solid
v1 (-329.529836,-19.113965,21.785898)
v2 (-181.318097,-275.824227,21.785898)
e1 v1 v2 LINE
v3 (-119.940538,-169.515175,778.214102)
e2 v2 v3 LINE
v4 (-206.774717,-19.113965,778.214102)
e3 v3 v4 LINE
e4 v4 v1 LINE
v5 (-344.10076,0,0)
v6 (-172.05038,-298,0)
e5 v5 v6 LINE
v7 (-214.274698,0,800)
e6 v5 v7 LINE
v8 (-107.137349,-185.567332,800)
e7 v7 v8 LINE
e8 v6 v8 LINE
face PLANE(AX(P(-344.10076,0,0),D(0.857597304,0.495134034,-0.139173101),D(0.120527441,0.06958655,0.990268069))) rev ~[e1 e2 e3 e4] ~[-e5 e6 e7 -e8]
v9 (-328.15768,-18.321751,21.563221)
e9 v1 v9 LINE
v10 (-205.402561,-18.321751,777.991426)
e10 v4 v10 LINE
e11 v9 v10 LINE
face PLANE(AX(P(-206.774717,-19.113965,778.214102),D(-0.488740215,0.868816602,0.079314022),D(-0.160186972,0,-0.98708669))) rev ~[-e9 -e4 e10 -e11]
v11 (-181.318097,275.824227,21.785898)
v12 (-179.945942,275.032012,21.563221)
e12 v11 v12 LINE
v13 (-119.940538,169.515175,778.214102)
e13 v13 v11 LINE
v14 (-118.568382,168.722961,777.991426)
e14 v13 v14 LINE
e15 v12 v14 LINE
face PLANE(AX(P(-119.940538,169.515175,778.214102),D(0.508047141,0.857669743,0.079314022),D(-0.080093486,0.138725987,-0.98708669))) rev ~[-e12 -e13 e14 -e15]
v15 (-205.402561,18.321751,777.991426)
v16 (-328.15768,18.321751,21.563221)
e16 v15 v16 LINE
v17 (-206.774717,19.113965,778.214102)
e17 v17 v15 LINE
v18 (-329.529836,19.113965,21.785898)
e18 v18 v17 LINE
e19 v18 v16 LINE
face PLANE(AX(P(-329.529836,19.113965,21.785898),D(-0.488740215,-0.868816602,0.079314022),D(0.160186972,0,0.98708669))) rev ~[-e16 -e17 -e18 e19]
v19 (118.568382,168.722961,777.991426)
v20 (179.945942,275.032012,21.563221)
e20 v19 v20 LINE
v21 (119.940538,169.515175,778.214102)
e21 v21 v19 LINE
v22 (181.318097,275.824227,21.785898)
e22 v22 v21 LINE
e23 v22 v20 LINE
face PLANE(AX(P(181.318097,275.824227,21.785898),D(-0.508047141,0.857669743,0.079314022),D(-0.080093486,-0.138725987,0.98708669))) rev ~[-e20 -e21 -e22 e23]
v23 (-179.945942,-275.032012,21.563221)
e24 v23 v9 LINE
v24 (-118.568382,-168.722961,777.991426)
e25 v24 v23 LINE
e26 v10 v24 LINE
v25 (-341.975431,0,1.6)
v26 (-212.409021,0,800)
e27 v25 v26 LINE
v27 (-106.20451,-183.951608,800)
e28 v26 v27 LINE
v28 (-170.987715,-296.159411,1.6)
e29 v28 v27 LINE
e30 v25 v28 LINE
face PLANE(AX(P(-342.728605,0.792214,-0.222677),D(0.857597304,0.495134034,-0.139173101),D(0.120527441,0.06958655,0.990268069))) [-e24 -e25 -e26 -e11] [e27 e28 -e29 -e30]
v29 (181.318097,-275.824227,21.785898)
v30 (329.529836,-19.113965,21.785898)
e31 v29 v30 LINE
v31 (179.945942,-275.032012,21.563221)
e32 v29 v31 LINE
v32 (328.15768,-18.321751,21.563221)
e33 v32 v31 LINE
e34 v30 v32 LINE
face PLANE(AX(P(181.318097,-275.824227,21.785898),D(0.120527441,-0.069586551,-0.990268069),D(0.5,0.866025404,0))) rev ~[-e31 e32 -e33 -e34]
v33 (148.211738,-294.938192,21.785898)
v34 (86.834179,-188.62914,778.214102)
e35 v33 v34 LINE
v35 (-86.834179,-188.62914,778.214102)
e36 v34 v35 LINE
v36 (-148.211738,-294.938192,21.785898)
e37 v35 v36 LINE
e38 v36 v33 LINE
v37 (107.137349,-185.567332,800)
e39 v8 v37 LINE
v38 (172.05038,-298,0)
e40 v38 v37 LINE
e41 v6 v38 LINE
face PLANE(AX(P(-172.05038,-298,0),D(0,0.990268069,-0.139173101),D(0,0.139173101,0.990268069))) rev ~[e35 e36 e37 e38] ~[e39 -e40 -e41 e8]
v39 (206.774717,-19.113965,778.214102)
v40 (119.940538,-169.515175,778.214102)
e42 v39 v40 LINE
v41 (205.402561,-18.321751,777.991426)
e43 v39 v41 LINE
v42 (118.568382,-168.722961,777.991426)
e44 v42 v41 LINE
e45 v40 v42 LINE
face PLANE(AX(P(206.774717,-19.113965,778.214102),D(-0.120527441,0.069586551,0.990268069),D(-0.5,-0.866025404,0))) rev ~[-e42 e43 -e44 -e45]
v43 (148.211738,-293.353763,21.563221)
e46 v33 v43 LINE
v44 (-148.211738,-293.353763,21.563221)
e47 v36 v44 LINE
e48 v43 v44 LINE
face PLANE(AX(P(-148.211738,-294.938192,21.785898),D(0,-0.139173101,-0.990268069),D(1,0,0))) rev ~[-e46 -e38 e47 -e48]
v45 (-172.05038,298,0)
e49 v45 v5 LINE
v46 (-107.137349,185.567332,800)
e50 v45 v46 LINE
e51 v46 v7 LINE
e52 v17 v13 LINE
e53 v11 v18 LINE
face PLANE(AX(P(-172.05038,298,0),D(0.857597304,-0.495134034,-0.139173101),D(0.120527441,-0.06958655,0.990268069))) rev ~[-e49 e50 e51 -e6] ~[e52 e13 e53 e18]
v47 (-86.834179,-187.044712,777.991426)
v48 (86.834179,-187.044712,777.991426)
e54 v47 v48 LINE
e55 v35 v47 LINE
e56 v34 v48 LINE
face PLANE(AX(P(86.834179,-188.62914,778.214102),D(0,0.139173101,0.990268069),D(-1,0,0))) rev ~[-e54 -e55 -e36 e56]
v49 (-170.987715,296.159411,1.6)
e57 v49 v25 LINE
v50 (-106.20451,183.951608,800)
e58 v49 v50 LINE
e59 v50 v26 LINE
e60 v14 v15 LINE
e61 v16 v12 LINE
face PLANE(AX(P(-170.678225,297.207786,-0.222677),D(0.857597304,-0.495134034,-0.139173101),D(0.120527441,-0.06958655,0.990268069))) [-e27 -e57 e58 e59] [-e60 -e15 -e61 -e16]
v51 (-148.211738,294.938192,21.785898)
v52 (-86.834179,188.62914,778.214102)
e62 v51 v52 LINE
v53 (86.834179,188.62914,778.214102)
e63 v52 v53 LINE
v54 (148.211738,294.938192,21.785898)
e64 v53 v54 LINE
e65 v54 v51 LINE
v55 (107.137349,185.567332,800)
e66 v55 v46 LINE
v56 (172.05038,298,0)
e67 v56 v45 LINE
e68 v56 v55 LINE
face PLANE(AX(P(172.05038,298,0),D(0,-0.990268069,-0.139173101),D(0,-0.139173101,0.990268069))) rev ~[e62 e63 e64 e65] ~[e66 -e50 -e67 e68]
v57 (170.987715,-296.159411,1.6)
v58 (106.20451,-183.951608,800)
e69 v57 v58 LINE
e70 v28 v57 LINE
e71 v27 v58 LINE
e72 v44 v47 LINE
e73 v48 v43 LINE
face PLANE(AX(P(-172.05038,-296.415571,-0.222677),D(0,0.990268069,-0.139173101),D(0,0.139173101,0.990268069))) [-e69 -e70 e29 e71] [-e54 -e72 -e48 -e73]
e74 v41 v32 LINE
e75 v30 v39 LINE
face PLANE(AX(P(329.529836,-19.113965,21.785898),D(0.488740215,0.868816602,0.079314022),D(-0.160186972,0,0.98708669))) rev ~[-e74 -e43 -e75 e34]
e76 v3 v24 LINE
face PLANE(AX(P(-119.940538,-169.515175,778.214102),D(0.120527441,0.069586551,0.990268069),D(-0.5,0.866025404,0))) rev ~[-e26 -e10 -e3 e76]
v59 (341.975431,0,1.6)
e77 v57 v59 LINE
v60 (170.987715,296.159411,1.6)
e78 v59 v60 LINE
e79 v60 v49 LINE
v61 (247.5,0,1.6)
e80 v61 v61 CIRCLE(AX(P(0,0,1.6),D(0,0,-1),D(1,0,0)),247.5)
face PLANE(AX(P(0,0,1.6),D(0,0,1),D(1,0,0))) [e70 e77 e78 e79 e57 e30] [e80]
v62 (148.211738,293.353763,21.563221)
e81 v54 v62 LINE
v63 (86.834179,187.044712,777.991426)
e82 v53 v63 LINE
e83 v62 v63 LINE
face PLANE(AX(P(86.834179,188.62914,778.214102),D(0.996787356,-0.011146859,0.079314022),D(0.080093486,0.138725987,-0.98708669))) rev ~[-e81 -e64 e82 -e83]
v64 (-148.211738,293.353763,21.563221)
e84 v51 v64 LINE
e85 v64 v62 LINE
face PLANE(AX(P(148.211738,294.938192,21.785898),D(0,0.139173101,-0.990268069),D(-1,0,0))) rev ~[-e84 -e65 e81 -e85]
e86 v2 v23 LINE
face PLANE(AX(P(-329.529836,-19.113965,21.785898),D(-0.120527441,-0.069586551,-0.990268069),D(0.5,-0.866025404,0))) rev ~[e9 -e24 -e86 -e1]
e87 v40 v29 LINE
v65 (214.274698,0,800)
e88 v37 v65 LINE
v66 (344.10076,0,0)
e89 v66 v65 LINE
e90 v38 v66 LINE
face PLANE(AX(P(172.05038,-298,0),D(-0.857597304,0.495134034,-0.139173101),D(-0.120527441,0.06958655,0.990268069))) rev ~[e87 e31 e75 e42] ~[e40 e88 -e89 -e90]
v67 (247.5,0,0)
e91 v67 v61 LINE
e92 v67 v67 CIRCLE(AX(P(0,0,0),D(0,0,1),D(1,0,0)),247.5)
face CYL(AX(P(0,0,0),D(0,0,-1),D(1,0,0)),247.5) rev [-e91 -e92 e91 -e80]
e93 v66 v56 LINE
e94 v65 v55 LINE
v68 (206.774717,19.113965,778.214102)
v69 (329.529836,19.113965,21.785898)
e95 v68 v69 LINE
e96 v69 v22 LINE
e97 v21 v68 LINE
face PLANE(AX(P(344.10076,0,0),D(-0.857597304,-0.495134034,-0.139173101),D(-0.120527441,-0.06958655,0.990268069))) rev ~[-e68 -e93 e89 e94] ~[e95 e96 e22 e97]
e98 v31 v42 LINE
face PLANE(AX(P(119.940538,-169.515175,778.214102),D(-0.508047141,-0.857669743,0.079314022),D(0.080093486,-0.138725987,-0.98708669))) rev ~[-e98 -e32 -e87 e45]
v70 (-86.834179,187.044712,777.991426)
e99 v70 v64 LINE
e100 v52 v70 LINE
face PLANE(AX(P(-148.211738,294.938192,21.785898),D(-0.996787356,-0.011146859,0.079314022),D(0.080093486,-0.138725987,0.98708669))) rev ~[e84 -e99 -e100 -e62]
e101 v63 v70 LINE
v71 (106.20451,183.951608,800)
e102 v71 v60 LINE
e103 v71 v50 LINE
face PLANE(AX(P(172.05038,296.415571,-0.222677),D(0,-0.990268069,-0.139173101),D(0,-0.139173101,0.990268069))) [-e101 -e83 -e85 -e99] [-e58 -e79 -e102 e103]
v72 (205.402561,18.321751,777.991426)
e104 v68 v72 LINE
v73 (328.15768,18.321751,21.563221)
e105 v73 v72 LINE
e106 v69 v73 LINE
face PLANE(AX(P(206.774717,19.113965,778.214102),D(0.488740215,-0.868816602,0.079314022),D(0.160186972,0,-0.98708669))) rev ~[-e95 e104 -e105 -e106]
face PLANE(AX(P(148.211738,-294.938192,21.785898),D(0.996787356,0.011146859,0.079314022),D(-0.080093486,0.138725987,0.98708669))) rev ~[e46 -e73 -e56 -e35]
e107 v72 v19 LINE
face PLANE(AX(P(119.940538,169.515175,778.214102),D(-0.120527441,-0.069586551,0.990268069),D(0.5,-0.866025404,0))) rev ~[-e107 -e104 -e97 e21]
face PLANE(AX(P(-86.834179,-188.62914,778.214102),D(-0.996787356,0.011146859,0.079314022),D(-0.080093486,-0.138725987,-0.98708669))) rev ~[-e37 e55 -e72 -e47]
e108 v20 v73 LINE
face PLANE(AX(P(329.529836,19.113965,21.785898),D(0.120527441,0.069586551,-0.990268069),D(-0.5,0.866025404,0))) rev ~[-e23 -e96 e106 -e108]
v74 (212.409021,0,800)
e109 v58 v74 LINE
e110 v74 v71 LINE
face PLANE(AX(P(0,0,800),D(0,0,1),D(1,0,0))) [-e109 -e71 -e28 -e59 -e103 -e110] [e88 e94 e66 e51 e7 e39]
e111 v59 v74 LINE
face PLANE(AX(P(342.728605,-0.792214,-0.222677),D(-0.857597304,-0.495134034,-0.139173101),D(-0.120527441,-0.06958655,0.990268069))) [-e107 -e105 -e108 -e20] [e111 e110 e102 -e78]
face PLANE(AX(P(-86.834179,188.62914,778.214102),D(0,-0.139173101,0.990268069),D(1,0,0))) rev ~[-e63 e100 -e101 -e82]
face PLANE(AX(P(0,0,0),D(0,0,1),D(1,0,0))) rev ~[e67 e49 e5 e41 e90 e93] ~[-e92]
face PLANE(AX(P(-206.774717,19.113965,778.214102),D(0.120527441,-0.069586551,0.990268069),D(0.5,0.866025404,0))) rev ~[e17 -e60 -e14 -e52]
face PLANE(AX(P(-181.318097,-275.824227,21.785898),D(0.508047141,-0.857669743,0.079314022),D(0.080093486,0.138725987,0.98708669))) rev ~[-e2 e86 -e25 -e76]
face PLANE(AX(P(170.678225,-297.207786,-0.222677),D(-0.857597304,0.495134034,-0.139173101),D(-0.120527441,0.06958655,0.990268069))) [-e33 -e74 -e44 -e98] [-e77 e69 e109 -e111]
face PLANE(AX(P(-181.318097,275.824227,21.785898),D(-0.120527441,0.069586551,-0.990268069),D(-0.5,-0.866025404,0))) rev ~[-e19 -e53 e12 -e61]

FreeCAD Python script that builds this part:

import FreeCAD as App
import Part
import Sketcher
Q = App.Units.Quantity


def faces_at(feature, points):
    """Names of the faces that lie closest to the given points."""
    faces = feature.Shape.Faces
    near = lambda p: min(range(len(faces)), key=lambda i: faces[i].distToShape(Part.Vertex(*p))[0])
    return sorted({f"Face{near(p) + 1}" for p in points})

doc = App.newDocument("Part")
body = doc.addObject("PartDesign::Body", "Body")

# Sketch on XY plane
sketch1 = body.newObject("Sketcher::SketchObject", "Sketch")
sketch1.AttachmentSupport = (doc.getObject("XY_Plane"), [""])
sketch1.MapMode = "FlatFace"
sketch1.addGeometry([
    Part.LineSegment(App.Vector(172, 298, 0), App.Vector(-172, 298, 0)),  # 0
    Part.LineSegment(App.Vector(-172, 298, 0), App.Vector(-344, 0, 0)),  # 1
    Part.LineSegment(App.Vector(-344, 0, 0), App.Vector(-172, -298, 0)),  # 2
    Part.LineSegment(App.Vector(-172, -298, 0), App.Vector(172, -298, 0)),  # 3
    Part.LineSegment(App.Vector(172, -298, 0), App.Vector(344, 0, 0)),  # 4
    Part.LineSegment(App.Vector(344, 0, 0), App.Vector(172, 298, 0)),  # 5
], False)
sketch1.addConstraint([
    Sketcher.Constraint("Coincident", 0, 2, 1, 1),
    Sketcher.Constraint("Coincident", 1, 2, 2, 1),
    Sketcher.Constraint("Coincident", 2, 2, 3, 1),
    Sketcher.Constraint("Coincident", 3, 2, 4, 1),
    Sketcher.Constraint("Coincident", 4, 2, 5, 1),
    Sketcher.Constraint("Coincident", 5, 2, 0, 1),
    Sketcher.Constraint("Horizontal", 0),
    Sketcher.Constraint("Horizontal", 3),
    Sketcher.Constraint("Symmetric", 0, 2, 3, 2, -1, 1),
    Sketcher.Constraint("Symmetric", 1, 2, 4, 2, -1, 1),
    Sketcher.Constraint("PointOnObject", 1, 2, -1),
    Sketcher.Constraint("Parallel", 2, 5),
    Sketcher.Constraint("Vertical", 0, 2, 2, 2),
    Sketcher.Constraint("Angle", 1, Q("-120 deg")),
    Sketcher.Constraint("DistanceY", -1, 1, 0, 2, Q("298 mm")),
    Sketcher.Constraint("DistanceX", 0, 2, 0, 1, Q("344.10076 mm")),
])
pad1 = body.newObject("PartDesign::Pad", "Pad")
pad1.Profile = sketch1
pad1.Length = 800
pad1.TaperAngle = -8
doc.recompute()

thickness = body.newObject("PartDesign::Thickness", "Thickness")
thickness.Base = (pad1, faces_at(pad1, [(0, 0, 800)]))
thickness.Value = 1.6
thickness.Reversed = True
thickness.Join = "Arc"

# Sketch on XY plane
sketch2 = body.newObject("Sketcher::SketchObject", "Sketch001")
sketch2.AttachmentSupport = (doc.getObject("XY_Plane"), [""])
sketch2.MapMode = "FlatFace"
sketch2.addGeometry(Part.Circle(App.Vector(0, 0, 0), App.Vector(0, 0, 1), 248), False)
sketch2.addConstraint([
    Sketcher.Constraint("Coincident", 0, 3, -1, 1),
    Sketcher.Constraint("Diameter", 0, Q("495 mm")),
])
pocket1 = body.newObject("PartDesign::Pocket", "Pocket")
pocket1.Profile = sketch2
pocket1.Length = 25
pocket1.Reversed = True

# Sketch on an angled plane
sketch3 = body.newObject("Sketcher::SketchObject", "Sketch002")
sketch3.Placement = App.Placement(App.Vector(0, -292.227993, 41.069966), App.Rotation(App.Vector(1, 0, 0), App.Vector(0, 0.139173101, 0.990268069), App.Vector(0, -0.990268069, 0.139173101), "ZXY"))
sketch3.addGeometry([
    Part.LineSegment(App.Vector(-87, 744, 0), App.Vector(-148, -19, 0)),
    Part.LineSegment(App.Vector(-148, -19, 0), App.Vector(148, -19, 0)),
    Part.LineSegment(App.Vector(148, -19, 0), App.Vector(87, 744, 0)),
    Part.LineSegment(App.Vector(87, 744, 0), App.Vector(-87, 744, 0)),
], False)
sketch3.addConstraint([
    Sketcher.Constraint("Coincident", 0, 2, 1, 1),
    Sketcher.Constraint("Coincident", 1, 2, 2, 1),
    Sketcher.Constraint("Coincident", 2, 2, 3, 1),
    Sketcher.Constraint("Coincident", 3, 2, 0, 1),
    Sketcher.Constraint("Horizontal", 1),
    Sketcher.Constraint("Horizontal", 3),
    Sketcher.Constraint("Equal", 0, 2),
    Sketcher.Constraint("DistanceX", 3, 2, 3, 1, Q("173.668358 mm")),
    Sketcher.Constraint("DistanceX", 1, 1, 1, 2, Q("296.423477 mm")),
    Sketcher.Constraint("DistanceX", 0, 2, -1, 1, Q("148.211738 mm")),
    Sketcher.Constraint("DistanceY", 1, 2, 2, 2, Q("763.862058 mm")),
    Sketcher.Constraint("DistanceY", 0, 2, -1, 1, Q("19.473584 mm")),
])
pocket2 = body.newObject("PartDesign::Pocket", "Pocket001")
pocket2.Profile = sketch3
pocket2.Length = 25

# Sketch on an angled plane
sketch4 = body.newObject("Sketcher::SketchObject", "Sketch003")
sketch4.Placement = App.Placement(App.Vector(-253.076865, -146.113996, 41.069966), App.Rotation(App.Vector(0.488740215, -0.868816602, -0.079314022), App.Vector(0.160186972, 0, 0.98708669), App.Vector(-0.857597304, -0.495134034, 0.139173101), "ZXY"))
sketch4.addGeometry([
    Part.LineSegment(App.Vector(-146, 735, 0), App.Vector(-146, -31, 0)),
    Part.LineSegment(App.Vector(-146, -31, 0), App.Vector(149, -8, 0)),
    Part.LineSegment(App.Vector(149, -8, 0), App.Vector(27, 749, 0)),
    Part.LineSegment(App.Vector(27, 749, 0), App.Vector(-146, 735, 0)),
], False)
sketch4.addConstraint([
    Sketcher.Constraint("Coincident", 0, 2, 1, 1),
    Sketcher.Constraint("Coincident", 1, 2, 2, 1),
    Sketcher.Constraint("Coincident", 2, 2, 3, 1),
    Sketcher.Constraint("Coincident", 3, 2, 0, 1),
    Sketcher.Constraint("Vertical", 0),
    Sketcher.Constraint("Parallel", 1, 3),
    Sketcher.Constraint("DistanceY", 1, 2, 2, 2, Q("756.492098 mm")),
    Sketcher.Constraint("Distance", 3, Q("173.668358 mm")),
    Sketcher.Constraint("DistanceY", 0, 2, 0, 1, Q("766.323983 mm")),
    Sketcher.Constraint("DistanceX", 0, 2, -1, 1, Q("146.17588 mm")),
    Sketcher.Constraint("DistanceY", -1, 1, 2, 2, Q("748.95187 mm")),
    Sketcher.Constraint("DistanceY", 0, 2, 1, 2, Q("23.74159 mm")),
])
pocket3 = body.newObject("PartDesign::Pocket", "Pocket002")
pocket3.Profile = sketch4
pocket3.Length = 25

# Sketch on an angled plane
sketch5 = body.newObject("Sketcher::SketchObject", "Sketch004")
sketch5.Placement = App.Placement(App.Vector(-253.076865, 146.113996, 41.069966), App.Rotation(App.Vector(-0.488740215, -0.868816602, 0.079314022), App.Vector(0.160186972, 0, 0.98708669), App.Vector(-0.857597304, 0.495134034, 0.139173101), "ZXY"))
sketch5.addGeometry([
    Part.LineSegment(App.Vector(146, 735, 0), App.Vector(-27, 749, 0)),
    Part.LineSegment(App.Vector(-27, 749, 0), App.Vector(-149, -8, 0)),
    Part.LineSegment(App.Vector(-149, -8, 0), App.Vector(146, -31, 0)),
    Part.LineSegment(App.Vector(146, -31, 0), App.Vector(146, 735, 0)),
], False)
sketch5.addConstraint([
    Sketcher.Constraint("Coincident", 0, 2, 1, 1),
    Sketcher.Constraint("Coincident", 1, 2, 2, 1),
    Sketcher.Constraint("Coincident", 2, 2, 3, 1),
    Sketcher.Constraint("Coincident", 3, 2, 0, 1),
    Sketcher.Constraint("Vertical", 3),
    Sketcher.Constraint("Parallel", 0, 2),
    Sketcher.Constraint("DistanceY", 1, 2, 0, 2, Q("756.492098 mm")),
    Sketcher.Constraint("Distance", 0, Q("173.668358 mm")),
    Sketcher.Constraint("DistanceY", 3, 1, 3, 2, Q("766.323983 mm")),
    Sketcher.Constraint("DistanceY", -1, 1, 0, 2, Q("748.95187 mm")),
    Sketcher.Constraint("DistanceX", -1, 1, 2, 2, Q("146.17588 mm")),
    Sketcher.Constraint("DistanceX", 1, 2, 0, 2, Q("122.36075 mm")),
])
pocket4 = body.newObject("PartDesign::Pocket", "Pocket003")
pocket4.Profile = sketch5
pocket4.Length = 25

# Sketch on an angled plane
sketch6 = body.newObject("Sketcher::SketchObject", "Sketch005")
sketch6.Placement = App.Placement(App.Vector(0, 292.227993, 41.069966), App.Rotation(App.Vector(-1, 0, 0), App.Vector(0, -0.139173101, 0.990268069), App.Vector(0, 0.990268069, 0.139173101), "ZXY"))
sketch6.addGeometry([
    Part.LineSegment(App.Vector(-148, -19, 0), App.Vector(148, -19, 0)),
    Part.LineSegment(App.Vector(148, -19, 0), App.Vector(87, 744, 0)),
    Part.LineSegment(App.Vector(87, 744, 0), App.Vector(-87, 744, 0)),
    Part.LineSegment(App.Vector(-87, 744, 0), App.Vector(-148, -19, 0)),
], False)
sketch6.addConstraint([
    Sketcher.Constraint("Coincident", 0, 2, 1, 1),
    Sketcher.Constraint("Coincident", 1, 2, 2, 1),
    Sketcher.Constraint("Coincident", 2, 2, 3, 1),
    Sketcher.Constraint("Coincident", 3, 2, 0, 1),
    Sketcher.Constraint("Horizontal", 0),
    Sketcher.Constraint("Horizontal", 2),
    Sketcher.Constraint("Equal", 1, 3),
    Sketcher.Constraint("DistanceX", 2, 2, 2, 1, Q("173.668358 mm")),
    Sketcher.Constraint("DistanceX", 0, 1, 0, 2, Q("296.423477 mm")),
    Sketcher.Constraint("DistanceX", -1, 1, 0, 2, Q("148.211738 mm")),
    Sketcher.Constraint("DistanceY", 0, 2, 1, 2, Q("763.862058 mm")),
    Sketcher.Constraint("DistanceY", 0, 2, -1, 1, Q("19.473584 mm")),
])
pocket5 = body.newObject("PartDesign::Pocket", "Pocket004")
pocket5.Profile = sketch6
pocket5.Length = 25

# Sketch on an angled plane
sketch7 = body.newObject("Sketcher::SketchObject", "Sketch006")
sketch7.Placement = App.Placement(App.Vector(253.076865, 146.113996, 41.069966), App.Rotation(App.Vector(-0.488740215, 0.868816602, -0.079314022), App.Vector(-0.160186972, 0, 0.98708669), App.Vector(0.857597304, 0.495134034, 0.139173101), "ZXY"))
sketch7.addGeometry([
    Part.LineSegment(App.Vector(27, 749, 0), App.Vector(-146, 735, 0)),
    Part.LineSegment(App.Vector(-146, 735, 0), App.Vector(-146, -31, 0)),
    Part.LineSegment(App.Vector(-146, -31, 0), App.Vector(149, -8, 0)),
    Part.LineSegment(App.Vector(149, -8, 0), App.Vector(27, 749, 0)),
], False)
sketch7.addConstraint([
    Sketcher.Constraint("Coincident", 0, 2, 1, 1),
    Sketcher.Constraint("Coincident", 1, 2, 2, 1),
    Sketcher.Constraint("Coincident", 2, 2, 3, 1),
    Sketcher.Constraint("Coincident", 3, 2, 0, 1),
    Sketcher.Constraint("Vertical", 1),
    Sketcher.Constraint("Parallel", 0, 2),
    Sketcher.Constraint("DistanceY", 2, 2, 3, 2, Q("756.492098 mm")),
    Sketcher.Constraint("Distance", 0, Q("173.668358 mm")),
    Sketcher.Constraint("DistanceY", 1, 2, 1, 1, Q("766.323983 mm")),
    Sketcher.Constraint("DistanceX", 0, 2, -1, 1, Q("146.17588 mm")),
    Sketcher.Constraint("DistanceY", -1, 1, 3, 2, Q("748.95187 mm")),
    Sketcher.Constraint("DistanceY", 1, 2, 2, 2, Q("23.74159 mm")),
])
pocket6 = body.newObject("PartDesign::Pocket", "Pocket005")
pocket6.Profile = sketch7
pocket6.Length = 25

# Sketch on an angled plane
sketch8 = body.newObject("Sketcher::SketchObject", "Sketch007")
sketch8.Placement = App.Placement(App.Vector(253.076865, -146.113996, 41.069966), App.Rotation(App.Vector(0.488740215, 0.868816602, 0.079314022), App.Vector(-0.160186972, 0, 0.98708669), App.Vector(0.857597304, -0.495134034, 0.139173101), "ZXY"))
sketch8.addGeometry([
    Part.LineSegment(App.Vector(-27, 749, 0), App.Vector(-149, -8, 0)),
    Part.LineSegment(App.Vector(-149, -8, 0), App.Vector(146, -31, 0)),
    Part.LineSegment(App.Vector(146, -31, 0), App.Vector(146, 735, 0)),
    Part.LineSegment(App.Vector(146, 735, 0), App.Vector(-27, 749, 0)),
], False)
sketch8.addConstraint([
    Sketcher.Constraint("Coincident", 0, 2, 1, 1),
    Sketcher.Constraint("Coincident", 1, 2, 2, 1),
    Sketcher.Constraint("Coincident", 2, 2, 3, 1),
    Sketcher.Constraint("Coincident", 3, 2, 0, 1),
    Sketcher.Constraint("Vertical", 2),
    Sketcher.Constraint("Parallel", 1, 3),
    Sketcher.Constraint("DistanceY", 0, 2, 3, 2, Q("756.492098 mm")),
    Sketcher.Constraint("Distance", 3, Q("173.668358 mm")),
    Sketcher.Constraint("DistanceY", 2, 1, 2, 2, Q("766.323983 mm")),
    Sketcher.Constraint("DistanceX", -1, 1, 1, 2, Q("146.17588 mm")),
    Sketcher.Constraint("DistanceY", -1, 1, 3, 2, Q("748.95187 mm")),
    Sketcher.Constraint("DistanceY", 1, 2, 0, 2, Q("23.74159 mm")),
])
pocket7 = body.newObject("PartDesign::Pocket", "Pocket006")
pocket7.Profile = sketch8
pocket7.Length = 25

doc.recompute()
